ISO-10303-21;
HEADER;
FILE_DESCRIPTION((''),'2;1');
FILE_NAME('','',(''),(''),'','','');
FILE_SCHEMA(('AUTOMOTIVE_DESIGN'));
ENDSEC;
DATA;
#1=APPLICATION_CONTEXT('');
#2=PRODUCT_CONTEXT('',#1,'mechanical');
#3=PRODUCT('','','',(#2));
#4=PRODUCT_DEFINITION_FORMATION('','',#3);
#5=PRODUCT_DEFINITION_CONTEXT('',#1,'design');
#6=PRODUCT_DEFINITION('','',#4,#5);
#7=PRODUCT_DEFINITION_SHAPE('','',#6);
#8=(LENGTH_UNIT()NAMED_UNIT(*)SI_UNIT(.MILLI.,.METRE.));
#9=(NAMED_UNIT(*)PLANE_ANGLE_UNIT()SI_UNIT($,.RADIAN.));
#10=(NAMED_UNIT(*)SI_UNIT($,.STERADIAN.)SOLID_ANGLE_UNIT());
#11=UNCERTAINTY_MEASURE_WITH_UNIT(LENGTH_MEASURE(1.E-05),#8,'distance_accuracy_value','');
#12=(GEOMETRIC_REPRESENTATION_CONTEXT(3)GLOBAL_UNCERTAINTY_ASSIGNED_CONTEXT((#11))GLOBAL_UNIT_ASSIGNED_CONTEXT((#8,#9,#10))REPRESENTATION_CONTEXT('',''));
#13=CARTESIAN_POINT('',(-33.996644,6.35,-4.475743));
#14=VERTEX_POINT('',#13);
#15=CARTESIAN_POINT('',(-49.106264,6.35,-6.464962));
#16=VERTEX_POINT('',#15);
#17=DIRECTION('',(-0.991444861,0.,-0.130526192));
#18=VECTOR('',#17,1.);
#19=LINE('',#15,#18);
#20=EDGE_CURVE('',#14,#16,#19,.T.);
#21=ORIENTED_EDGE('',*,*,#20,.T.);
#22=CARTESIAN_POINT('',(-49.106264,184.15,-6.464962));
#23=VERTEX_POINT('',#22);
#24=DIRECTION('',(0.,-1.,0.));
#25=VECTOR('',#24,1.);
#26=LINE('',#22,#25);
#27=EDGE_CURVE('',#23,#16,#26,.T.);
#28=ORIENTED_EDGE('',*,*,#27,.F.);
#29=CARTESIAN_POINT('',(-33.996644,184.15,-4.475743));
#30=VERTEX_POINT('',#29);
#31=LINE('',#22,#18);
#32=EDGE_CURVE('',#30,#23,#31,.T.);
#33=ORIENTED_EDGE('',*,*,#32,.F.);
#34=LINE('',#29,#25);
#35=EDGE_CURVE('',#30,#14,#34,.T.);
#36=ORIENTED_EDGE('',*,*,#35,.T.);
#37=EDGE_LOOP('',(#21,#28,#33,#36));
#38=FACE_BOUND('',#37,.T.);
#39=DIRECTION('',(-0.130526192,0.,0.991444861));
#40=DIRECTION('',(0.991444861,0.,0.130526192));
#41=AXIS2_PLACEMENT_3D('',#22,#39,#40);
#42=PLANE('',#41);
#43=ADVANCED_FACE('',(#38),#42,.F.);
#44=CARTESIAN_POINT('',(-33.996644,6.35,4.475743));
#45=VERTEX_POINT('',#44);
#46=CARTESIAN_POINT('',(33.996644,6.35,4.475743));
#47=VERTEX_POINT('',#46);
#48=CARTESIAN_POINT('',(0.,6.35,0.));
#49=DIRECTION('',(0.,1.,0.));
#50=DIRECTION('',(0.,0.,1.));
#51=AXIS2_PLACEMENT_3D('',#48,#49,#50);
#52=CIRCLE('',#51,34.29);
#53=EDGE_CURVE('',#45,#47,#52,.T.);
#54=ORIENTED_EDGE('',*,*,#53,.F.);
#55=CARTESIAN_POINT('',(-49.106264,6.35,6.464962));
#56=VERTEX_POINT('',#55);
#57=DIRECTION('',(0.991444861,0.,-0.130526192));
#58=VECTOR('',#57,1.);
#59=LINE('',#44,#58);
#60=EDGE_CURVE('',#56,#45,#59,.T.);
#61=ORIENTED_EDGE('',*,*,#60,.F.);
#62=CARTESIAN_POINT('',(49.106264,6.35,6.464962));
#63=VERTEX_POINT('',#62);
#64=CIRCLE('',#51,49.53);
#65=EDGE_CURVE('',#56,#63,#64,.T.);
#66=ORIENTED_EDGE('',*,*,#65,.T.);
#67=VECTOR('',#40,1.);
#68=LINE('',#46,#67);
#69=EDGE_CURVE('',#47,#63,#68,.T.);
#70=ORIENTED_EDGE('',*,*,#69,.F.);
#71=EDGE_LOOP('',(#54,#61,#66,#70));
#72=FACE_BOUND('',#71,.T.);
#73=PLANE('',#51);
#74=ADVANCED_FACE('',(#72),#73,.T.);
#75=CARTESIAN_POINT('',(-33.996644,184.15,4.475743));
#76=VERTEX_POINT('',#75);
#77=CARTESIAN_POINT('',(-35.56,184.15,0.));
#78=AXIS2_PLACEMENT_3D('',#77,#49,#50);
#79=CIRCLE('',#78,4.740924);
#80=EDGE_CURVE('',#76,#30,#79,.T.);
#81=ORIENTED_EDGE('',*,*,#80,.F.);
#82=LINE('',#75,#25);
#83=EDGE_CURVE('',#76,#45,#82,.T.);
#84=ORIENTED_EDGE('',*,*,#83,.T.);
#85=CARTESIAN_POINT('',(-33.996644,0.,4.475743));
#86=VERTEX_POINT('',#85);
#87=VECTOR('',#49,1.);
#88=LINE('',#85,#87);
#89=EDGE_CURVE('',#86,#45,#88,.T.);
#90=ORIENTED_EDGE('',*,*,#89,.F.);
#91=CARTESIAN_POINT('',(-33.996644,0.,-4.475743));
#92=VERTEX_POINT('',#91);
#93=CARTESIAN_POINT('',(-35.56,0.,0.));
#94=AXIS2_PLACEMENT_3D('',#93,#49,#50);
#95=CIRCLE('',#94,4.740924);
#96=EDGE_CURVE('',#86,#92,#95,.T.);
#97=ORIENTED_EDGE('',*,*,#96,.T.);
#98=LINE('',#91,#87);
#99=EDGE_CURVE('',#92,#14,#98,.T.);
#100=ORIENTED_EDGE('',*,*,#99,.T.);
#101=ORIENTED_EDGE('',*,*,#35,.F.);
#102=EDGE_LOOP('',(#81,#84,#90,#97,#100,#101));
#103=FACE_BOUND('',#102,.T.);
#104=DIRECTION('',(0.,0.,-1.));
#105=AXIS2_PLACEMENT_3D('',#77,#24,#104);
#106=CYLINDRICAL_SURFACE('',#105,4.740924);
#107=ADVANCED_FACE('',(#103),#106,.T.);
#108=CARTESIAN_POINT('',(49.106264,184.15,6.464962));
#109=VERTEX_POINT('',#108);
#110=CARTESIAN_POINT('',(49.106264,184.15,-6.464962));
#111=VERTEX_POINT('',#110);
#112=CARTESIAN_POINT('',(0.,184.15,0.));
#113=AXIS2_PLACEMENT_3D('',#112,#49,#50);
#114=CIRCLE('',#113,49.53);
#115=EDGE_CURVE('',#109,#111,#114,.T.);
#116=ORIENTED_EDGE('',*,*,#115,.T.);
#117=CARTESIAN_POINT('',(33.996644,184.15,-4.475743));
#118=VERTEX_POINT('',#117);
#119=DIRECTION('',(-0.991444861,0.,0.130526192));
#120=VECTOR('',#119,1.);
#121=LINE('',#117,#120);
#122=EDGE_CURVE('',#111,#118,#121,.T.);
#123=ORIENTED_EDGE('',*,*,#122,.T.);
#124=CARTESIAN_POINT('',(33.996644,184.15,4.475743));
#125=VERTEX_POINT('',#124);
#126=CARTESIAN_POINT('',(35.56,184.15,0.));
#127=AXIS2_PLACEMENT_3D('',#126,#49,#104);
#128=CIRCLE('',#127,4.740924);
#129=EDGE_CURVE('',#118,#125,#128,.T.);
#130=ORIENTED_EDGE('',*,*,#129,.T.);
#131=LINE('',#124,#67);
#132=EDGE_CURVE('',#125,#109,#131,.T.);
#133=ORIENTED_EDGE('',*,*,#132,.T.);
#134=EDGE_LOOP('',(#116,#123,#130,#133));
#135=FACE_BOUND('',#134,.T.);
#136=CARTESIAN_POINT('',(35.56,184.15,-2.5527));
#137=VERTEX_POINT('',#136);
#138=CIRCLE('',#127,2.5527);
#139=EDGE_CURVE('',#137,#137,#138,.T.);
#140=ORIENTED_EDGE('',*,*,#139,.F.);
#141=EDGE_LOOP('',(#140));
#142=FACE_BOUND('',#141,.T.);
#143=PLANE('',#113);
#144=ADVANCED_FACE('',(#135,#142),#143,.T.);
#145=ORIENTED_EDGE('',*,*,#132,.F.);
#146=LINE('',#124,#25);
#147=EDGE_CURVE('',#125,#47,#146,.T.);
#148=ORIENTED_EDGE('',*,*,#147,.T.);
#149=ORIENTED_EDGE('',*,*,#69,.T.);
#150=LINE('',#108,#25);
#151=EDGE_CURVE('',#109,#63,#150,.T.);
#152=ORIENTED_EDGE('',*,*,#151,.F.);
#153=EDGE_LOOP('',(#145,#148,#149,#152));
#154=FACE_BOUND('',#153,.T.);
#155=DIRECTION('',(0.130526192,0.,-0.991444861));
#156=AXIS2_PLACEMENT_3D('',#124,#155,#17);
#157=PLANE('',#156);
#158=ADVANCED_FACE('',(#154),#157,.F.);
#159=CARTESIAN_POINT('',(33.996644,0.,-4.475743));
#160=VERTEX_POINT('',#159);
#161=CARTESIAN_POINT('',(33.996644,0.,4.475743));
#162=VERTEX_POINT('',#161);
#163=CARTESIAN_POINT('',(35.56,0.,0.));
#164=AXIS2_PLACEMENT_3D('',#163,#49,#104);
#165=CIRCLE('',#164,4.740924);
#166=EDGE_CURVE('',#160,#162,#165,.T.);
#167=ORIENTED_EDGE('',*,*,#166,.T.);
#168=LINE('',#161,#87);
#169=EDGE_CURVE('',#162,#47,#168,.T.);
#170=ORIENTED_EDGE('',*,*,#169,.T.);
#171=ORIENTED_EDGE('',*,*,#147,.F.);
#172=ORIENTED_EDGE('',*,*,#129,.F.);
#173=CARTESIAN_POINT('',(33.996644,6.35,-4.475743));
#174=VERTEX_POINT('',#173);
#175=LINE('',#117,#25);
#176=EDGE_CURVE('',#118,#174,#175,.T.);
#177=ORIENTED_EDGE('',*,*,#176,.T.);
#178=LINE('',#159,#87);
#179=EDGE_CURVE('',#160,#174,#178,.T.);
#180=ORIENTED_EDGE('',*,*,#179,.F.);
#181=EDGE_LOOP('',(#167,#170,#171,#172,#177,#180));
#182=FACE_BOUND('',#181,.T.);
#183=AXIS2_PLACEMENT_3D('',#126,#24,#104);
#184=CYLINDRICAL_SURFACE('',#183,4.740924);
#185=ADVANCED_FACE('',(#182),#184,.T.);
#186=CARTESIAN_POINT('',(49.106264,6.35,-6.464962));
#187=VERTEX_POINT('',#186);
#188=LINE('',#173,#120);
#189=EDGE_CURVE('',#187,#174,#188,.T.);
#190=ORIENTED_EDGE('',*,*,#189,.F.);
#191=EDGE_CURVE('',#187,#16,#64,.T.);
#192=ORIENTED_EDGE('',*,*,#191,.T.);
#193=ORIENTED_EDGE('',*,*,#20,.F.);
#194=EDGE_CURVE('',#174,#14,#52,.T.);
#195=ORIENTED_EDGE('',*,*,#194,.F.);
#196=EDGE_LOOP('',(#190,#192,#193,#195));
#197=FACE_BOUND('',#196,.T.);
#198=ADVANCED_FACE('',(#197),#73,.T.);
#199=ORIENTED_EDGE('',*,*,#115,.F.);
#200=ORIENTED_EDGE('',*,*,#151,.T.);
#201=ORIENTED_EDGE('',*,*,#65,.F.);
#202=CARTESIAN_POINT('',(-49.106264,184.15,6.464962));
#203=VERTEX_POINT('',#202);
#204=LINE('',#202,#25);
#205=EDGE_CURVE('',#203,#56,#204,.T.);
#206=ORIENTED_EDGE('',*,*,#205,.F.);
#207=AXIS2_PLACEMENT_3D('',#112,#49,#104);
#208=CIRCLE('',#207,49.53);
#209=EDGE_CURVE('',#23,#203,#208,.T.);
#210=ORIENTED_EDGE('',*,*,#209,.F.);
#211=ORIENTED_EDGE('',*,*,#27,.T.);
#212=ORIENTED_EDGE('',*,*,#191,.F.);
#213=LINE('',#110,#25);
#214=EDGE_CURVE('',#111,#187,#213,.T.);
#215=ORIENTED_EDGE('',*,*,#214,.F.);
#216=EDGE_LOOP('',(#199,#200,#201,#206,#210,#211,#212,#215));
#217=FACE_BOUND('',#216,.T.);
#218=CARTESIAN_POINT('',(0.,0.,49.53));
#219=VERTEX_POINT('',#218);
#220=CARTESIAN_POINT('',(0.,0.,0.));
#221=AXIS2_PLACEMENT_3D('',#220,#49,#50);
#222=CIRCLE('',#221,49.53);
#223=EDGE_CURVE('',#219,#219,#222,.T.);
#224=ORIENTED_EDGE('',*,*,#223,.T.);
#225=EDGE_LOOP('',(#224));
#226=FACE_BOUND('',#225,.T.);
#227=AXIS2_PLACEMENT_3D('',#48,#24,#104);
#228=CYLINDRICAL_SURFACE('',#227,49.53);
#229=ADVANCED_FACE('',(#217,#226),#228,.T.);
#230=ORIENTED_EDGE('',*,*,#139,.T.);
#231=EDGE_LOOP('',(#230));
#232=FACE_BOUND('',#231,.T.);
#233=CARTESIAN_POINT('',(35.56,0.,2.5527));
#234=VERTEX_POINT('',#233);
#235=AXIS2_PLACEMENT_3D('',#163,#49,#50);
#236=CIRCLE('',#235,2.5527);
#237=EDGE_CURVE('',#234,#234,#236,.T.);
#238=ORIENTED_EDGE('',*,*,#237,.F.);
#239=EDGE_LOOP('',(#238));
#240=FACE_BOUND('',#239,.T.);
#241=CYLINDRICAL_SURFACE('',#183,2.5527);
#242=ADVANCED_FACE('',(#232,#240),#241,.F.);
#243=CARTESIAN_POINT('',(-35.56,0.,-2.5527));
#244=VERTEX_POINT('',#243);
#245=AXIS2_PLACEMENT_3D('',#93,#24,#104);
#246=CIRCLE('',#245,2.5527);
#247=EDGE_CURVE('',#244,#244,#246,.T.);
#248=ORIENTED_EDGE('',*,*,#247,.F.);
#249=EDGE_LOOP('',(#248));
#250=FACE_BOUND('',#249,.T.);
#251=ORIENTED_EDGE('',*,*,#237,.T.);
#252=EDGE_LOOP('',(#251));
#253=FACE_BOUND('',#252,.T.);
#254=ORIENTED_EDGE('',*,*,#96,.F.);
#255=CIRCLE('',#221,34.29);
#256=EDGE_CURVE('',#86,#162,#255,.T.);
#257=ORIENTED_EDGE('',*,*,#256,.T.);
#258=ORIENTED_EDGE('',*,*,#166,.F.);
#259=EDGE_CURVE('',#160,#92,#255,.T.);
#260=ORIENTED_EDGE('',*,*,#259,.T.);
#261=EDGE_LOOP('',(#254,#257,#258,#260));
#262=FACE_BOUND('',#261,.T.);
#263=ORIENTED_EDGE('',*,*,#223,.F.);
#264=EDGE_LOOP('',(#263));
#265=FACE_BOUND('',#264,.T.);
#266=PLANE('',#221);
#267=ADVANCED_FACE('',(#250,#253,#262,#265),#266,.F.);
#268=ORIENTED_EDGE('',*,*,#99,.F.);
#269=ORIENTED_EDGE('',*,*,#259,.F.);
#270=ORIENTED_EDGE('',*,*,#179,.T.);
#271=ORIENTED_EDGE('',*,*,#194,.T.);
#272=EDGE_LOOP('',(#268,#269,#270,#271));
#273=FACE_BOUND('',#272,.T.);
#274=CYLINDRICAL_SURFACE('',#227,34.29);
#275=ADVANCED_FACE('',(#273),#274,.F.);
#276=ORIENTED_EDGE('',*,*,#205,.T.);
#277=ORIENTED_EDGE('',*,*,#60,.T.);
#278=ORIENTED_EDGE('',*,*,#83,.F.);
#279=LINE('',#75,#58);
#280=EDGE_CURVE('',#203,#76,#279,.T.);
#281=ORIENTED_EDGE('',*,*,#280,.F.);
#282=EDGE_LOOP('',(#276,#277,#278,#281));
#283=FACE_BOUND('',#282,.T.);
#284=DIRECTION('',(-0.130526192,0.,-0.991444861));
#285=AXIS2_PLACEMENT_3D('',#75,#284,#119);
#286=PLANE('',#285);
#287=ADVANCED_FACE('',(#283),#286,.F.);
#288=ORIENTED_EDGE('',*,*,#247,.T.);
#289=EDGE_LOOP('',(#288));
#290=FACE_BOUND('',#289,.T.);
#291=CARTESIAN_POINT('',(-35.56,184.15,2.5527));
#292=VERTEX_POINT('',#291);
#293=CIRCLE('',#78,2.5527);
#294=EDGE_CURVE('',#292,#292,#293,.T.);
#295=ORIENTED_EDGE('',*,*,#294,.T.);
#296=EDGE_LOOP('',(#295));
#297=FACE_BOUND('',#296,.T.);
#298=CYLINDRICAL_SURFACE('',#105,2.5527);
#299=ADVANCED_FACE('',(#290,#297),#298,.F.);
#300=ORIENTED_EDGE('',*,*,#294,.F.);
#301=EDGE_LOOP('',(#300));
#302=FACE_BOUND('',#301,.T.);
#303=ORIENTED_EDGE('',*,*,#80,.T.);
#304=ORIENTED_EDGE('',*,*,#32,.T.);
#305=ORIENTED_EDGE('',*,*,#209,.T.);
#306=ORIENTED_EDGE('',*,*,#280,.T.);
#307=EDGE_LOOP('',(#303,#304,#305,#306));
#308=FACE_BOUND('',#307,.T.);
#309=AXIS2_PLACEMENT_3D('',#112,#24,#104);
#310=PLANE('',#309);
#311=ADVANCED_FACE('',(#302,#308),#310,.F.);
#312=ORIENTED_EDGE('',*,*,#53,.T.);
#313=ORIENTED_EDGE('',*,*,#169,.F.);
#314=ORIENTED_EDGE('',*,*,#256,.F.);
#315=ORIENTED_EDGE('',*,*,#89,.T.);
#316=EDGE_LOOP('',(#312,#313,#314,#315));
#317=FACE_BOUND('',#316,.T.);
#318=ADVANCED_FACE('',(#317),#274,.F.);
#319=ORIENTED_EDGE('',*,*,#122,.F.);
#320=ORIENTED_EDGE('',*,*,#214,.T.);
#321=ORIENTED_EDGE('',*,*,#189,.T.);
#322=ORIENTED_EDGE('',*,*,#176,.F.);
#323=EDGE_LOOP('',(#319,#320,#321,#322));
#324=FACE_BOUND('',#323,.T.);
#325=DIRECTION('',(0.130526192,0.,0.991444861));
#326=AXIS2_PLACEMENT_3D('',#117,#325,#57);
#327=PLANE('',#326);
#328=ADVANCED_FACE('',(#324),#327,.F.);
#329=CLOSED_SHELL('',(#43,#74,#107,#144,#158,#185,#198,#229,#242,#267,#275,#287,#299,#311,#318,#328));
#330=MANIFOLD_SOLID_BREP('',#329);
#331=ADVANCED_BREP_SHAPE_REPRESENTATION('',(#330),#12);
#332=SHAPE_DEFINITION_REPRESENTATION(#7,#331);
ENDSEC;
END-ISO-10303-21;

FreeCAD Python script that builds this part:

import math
import FreeCAD as App
import Part
import Sketcher

V = App.Vector
Q = App.Units.Quantity

doc = App.newDocument("Part")
body = doc.addObject("PartDesign::Body", "Body")

# Sketch on XZ plane
sketch1 = body.newObject("Sketcher::SketchObject", "Sketch")
sketch1.AttachmentSupport = (doc.getObject("XZ_Plane"), [""])
sketch1.MapMode = "FlatFace"
sketch1.addGeometry([
    Part.Circle(V(0, 0, 0), V(0, 0, 1), 49.53),
    Part.Circle(V(0, 0, 0), V(0, 0, 1), 34.29),
], False)
sketch1.addConstraint([
    Sketcher.Constraint("Coincident", 0, 3, -1, 1),
    Sketcher.Constraint("Coincident", 1, 3, -1, 1),
    Sketcher.Constraint("Diameter", 0, Q("3.9 in")),
    Sketcher.Constraint("Diameter", 1, Q("2.7 in")),
])
pad1 = body.newObject("PartDesign::Pad", "Pad")
pad1.Profile = sketch1
pad1.Length = Q("0.25 in")
pad1.Reversed = True

# Sketch on XZ plane
sketch2 = body.newObject("Sketcher::SketchObject", "Sketch001")
sketch2.AttachmentSupport = (doc.getObject("XZ_Plane"), [""])
sketch2.MapMode = "FlatFace"
sketch2.AttachmentOffset = App.Placement(V(0, 0, -0.25 * 25.4), App.Rotation())
sketch2.addGeometry([
    Part.LineSegment(V(-33.996644, -4.475743, 0), V(-49.106264, -6.464962, 0)),  # 0
    Part.ArcOfCircle(Part.Circle(V(0, 0, 0), V(0, 0, 1), 49.53), math.radians(172.5), math.radians(187.5)),  # 1
    Part.LineSegment(V(-49.106264, 6.464962, 0), V(-33.996644, 4.475743, 0)),  # 2
    Part.ArcOfCircle(Part.Circle(V(-35.56, 0, 0), V(0, 0, 1), 4.740924), math.radians(-70.745936), math.radians(70.745936)),  # 3
    Part.Circle(V(-35.56, 0, 0), V(0, 0, 1), 2.5527),  # 4
    Part.LineSegment(V(49.106264, -6.464962, 0), V(33.996644, -4.475743, 0)),  # 5
    Part.ArcOfCircle(Part.Circle(V(35.56, 0, 0), V(0, 0, 1), 4.740924), math.radians(109.254064), math.radians(250.745936)),  # 6
    Part.LineSegment(V(33.996644, 4.475743, 0), V(49.106264, 6.464962, 0)),  # 7
    Part.ArcOfCircle(Part.Circle(V(0, 0, 0), V(0, 0, 1), 49.53), math.radians(-7.5), math.radians(7.5)),  # 8
    Part.Circle(V(35.56, 0, 0), V(0, 0, 1), 2.5527),  # 9
], False)
sketch2.addConstraint([
    Sketcher.Constraint("Coincident", 0, 2, 1, 2),
    Sketcher.Constraint("Coincident", 1, 1, 2, 1),
    Sketcher.Constraint("Coincident", 2, 2, 3, 2),
    Sketcher.Constraint("Coincident", 3, 1, 0, 1),
    Sketcher.Constraint("Coincident", 5, 2, 6, 2),
    Sketcher.Constraint("Coincident", 6, 1, 7, 1),
    Sketcher.Constraint("Coincident", 7, 2, 8, 2),
    Sketcher.Constraint("Coincident", 8, 1, 5, 1),
    Sketcher.Constraint("Coincident", 1, 3, -1, 1),
    Sketcher.Constraint("Coincident", 8, 3, -1, 1),
    Sketcher.Constraint("Coincident", 4, 3, 3, 3),
    Sketcher.Constraint("Coincident", 9, 3, 6, 3),
    Sketcher.Constraint("Equal", 3, 6),
    Sketcher.Constraint("Equal", 1, 8),
    Sketcher.Constraint("Equal", 4, 9),
    Sketcher.Constraint("Symmetric", 3, 3, 6, 3, -1, 1),
    Sketcher.Constraint("Symmetric", 3, 1, 5, 2, -2),
    Sketcher.Constraint("Parallel", 2, 5),
    Sketcher.Constraint("Parallel", 0, 7),
    Sketcher.Constraint("Horizontal", 2, 2, 6, 1),
    Sketcher.Constraint("Horizontal", 1, 1, 7, 2),
    Sketcher.Constraint("Vertical", 0, 2, 1, 1),
    Sketcher.Constraint("Radius", 1, Q("1.95 in")),
    Sketcher.Constraint("Diameter", 4, Q("0.201 in")),
    Sketcher.Constraint("Distance", 0, Q("0.6 in")),
    Sketcher.Constraint("DistanceX", 3, 3, -1, 1, Q("1.4 in")),
    Sketcher.Constraint("Angle", 0, Q("-172.5 deg")),
    Sketcher.Constraint("Radius", 3, 4.740924),
])
pad2 = body.newObject("PartDesign::Pad", "Pad001")
pad2.Profile = sketch2
pad2.Length = Q("7 in")
pad2.Reversed = True

# Sketch on XZ plane
sketch3 = body.newObject("Sketcher::SketchObject", "Sketch002")
sketch3.AttachmentSupport = (doc.getObject("XZ_Plane"), [""])
sketch3.MapMode = "FlatFace"
sketch3.addGeometry([
    Part.Circle(V(-35.56, 0, 0), V(0, 0, 1), 2.5527),
    Part.Circle(V(35.56, 0, 0), V(0, 0, 1), 2.5527),
], False)
sketch3.addConstraint([
    Sketcher.Constraint("Equal", 0, 1),
    Sketcher.Constraint("Symmetric", 0, 3, 1, 3, -1, 1),
    Sketcher.Constraint("PointOnObject", 0, 3, -1),
    Sketcher.Constraint("Diameter", 0, Q("0.201 in")),
    Sketcher.Constraint("DistanceX", 0, 3, -1, 1, Q("1.4 in")),
])
pocket1 = body.newObject("PartDesign::Pocket", "Pocket")
pocket1.Profile = sketch3
pocket1.Length = Q("0.25 in")

# Sketch on XZ plane
sketch4 = body.newObject("Sketcher::SketchObject", "Sketch003")
sketch4.AttachmentSupport = (doc.getObject("XZ_Plane"), [""])
sketch4.MapMode = "FlatFace"
sketch4.addGeometry([
    Part.LineSegment(V(-33.996644, -4.475743, 0), V(-49.106264, -6.464962, 0)),  # 0
    Part.ArcOfCircle(Part.Circle(V(0, 0, 0), V(0, 0, 1), 49.53), math.radians(172.5), math.radians(187.5)),  # 1
    Part.LineSegment(V(-49.106264, 6.464962, 0), V(-33.996644, 4.475743, 0)),  # 2
    Part.ArcOfCircle(Part.Circle(V(-35.56, 0, 0), V(0, 0, 1), 4.740924), math.radians(-70.745936), math.radians(70.745936)),  # 3
    Part.Circle(V(-35.56, 0, 0), V(0, 0, 1), 2.5527),  # 4
    Part.LineSegment(V(49.106264, -6.464962, 0), V(33.996644, -4.475743, 0)),  # 5
    Part.ArcOfCircle(Part.Circle(V(35.56, 0, 0), V(0, 0, 1), 4.740924), math.radians(109.254064), math.radians(250.745936)),  # 6
    Part.LineSegment(V(33.996644, 4.475743, 0), V(49.106264, 6.464962, 0)),  # 7
    Part.ArcOfCircle(Part.Circle(V(0, 0, 0), V(0, 0, 1), 49.53), math.radians(-7.5), math.radians(7.5)),  # 8
    Part.Circle(V(35.56, 0, 0), V(0, 0, 1), 2.5527),  # 9
], False)
sketch4.addConstraint([
    Sketcher.Constraint("Coincident", 0, 2, 1, 2),
    Sketcher.Constraint("Coincident", 1, 1, 2, 1),
    Sketcher.Constraint("Coincident", 2, 2, 3, 2),
    Sketcher.Constraint("Coincident", 3, 1, 0, 1),
    Sketcher.Constraint("Coincident", 5, 2, 6, 2),
    Sketcher.Constraint("Coincident", 6, 1, 7, 1),
    Sketcher.Constraint("Coincident", 7, 2, 8, 2),
    Sketcher.Constraint("Coincident", 8, 1, 5, 1),
    Sketcher.Constraint("Coincident", 1, 3, -1, 1),
    Sketcher.Constraint("Coincident", 8, 3, -1, 1),
    Sketcher.Constraint("Coincident", 4, 3, 3, 3),
    Sketcher.Constraint("Coincident", 9, 3, 6, 3),
    Sketcher.Constraint("Equal", 3, 6),
    Sketcher.Constraint("Equal", 1, 8),
    Sketcher.Constraint("Equal", 4, 9),
    Sketcher.Constraint("Symmetric", 3, 3, 6, 3, -1, 1),
    Sketcher.Constraint("Symmetric", 3, 1, 5, 2, -2),
    Sketcher.Constraint("Parallel", 2, 5),
    Sketcher.Constraint("Parallel", 0, 7),
    Sketcher.Constraint("Horizontal", 2, 2, 6, 1),
    Sketcher.Constraint("Horizontal", 1, 1, 7, 2),
    Sketcher.Constraint("Vertical", 0, 2, 1, 1),
    Sketcher.Constraint("Radius", 1, Q("1.95 in")),
    Sketcher.Constraint("Diameter", 4, Q("0.201 in")),
    Sketcher.Constraint("Distance", 0, Q("0.6 in")),
    Sketcher.Constraint("DistanceX", 3, 3, -1, 1, Q("1.4 in")),
    Sketcher.Constraint("Angle", 0, Q("-172.5 deg")),
    Sketcher.Constraint("Radius", 3, 4.740924),
])
pad3 = body.newObject("PartDesign::Pad", "Pad002")
pad3.Profile = sketch4
pad3.Length = Q("0.25 in")
pad3.Reversed = True

doc.recompute()
